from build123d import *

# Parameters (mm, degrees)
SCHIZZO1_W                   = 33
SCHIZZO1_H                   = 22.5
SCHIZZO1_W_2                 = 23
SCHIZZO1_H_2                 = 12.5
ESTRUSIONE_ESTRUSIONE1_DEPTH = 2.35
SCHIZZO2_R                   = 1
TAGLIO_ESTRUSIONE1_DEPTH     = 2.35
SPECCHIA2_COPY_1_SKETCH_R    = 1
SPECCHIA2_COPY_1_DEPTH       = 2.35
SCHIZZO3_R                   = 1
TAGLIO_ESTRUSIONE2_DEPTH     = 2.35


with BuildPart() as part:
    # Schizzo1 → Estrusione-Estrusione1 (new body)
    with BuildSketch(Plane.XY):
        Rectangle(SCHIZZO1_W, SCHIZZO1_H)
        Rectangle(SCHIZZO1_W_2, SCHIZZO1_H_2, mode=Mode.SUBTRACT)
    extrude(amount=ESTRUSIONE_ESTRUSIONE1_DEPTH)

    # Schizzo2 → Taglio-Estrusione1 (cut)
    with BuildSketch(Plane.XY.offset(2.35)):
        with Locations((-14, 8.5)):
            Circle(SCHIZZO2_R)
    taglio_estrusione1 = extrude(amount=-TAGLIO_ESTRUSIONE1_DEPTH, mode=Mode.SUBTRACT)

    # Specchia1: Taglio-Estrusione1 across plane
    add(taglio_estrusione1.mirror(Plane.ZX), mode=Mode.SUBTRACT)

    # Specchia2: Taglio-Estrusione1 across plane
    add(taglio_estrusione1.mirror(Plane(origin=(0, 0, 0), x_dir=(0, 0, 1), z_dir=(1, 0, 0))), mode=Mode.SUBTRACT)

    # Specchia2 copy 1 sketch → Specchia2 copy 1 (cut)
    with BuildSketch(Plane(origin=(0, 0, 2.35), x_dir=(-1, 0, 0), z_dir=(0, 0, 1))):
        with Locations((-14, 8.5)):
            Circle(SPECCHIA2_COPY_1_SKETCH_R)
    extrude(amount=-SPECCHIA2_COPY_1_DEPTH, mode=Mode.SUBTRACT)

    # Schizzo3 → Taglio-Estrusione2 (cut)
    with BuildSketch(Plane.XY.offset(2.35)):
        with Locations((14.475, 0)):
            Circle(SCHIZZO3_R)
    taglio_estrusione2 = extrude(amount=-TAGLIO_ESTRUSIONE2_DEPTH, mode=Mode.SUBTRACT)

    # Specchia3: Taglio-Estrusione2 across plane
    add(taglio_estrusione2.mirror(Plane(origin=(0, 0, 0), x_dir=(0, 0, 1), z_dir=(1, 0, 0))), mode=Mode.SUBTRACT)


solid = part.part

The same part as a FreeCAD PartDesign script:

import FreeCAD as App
import Part
import Sketcher
Q = App.Units.Quantity

doc = App.newDocument("Part")
body = doc.addObject("PartDesign::Body", "Body")

# Sketch on XY plane
sketch1 = body.newObject("Sketcher::SketchObject", "Sketch")
sketch1.AttachmentSupport = (doc.getObject("XY_Plane"), [""])
sketch1.MapMode = "FlatFace"
sketch1.addGeometry([
    Part.LineSegment(App.Vector(-16, 11, 0), App.Vector(-16, -11, 0)),  # 0
    Part.LineSegment(App.Vector(-16, -11, 0), App.Vector(16, -11, 0)),  # 1
    Part.LineSegment(App.Vector(16, -11, 0), App.Vector(16, 11, 0)),  # 2
    Part.LineSegment(App.Vector(16, 11, 0), App.Vector(-16, 11, 0)),  # 3
    Part.LineSegment(App.Vector(12, -6, 0), App.Vector(-12, -6, 0)),  # 4
    Part.LineSegment(App.Vector(-12, -6, 0), App.Vector(-12, 6, 0)),  # 5
    Part.LineSegment(App.Vector(-12, 6, 0), App.Vector(12, 6, 0)),  # 6
    Part.LineSegment(App.Vector(12, 6, 0), App.Vector(12, -6, 0)),  # 7
], False)
sketch1.addConstraint([
    Sketcher.Constraint("Coincident", 0, 2, 1, 1),
    Sketcher.Constraint("Coincident", 1, 2, 2, 1),
    Sketcher.Constraint("Coincident", 2, 2, 3, 1),
    Sketcher.Constraint("Coincident", 3, 2, 0, 1),
    Sketcher.Constraint("Coincident", 4, 2, 5, 1),
    Sketcher.Constraint("Coincident", 5, 2, 6, 1),
    Sketcher.Constraint("Coincident", 6, 2, 7, 1),
    Sketcher.Constraint("Coincident", 7, 2, 4, 1),
    Sketcher.Constraint("Vertical", 0),
    Sketcher.Constraint("Horizontal", 1),
    Sketcher.Constraint("Vertical", 2),
    Sketcher.Constraint("Horizontal", 3),
    Sketcher.Constraint("Horizontal", 4),
    Sketcher.Constraint("Vertical", 5),
    Sketcher.Constraint("Horizontal", 6),
    Sketcher.Constraint("Vertical", 7),
    Sketcher.Constraint("Symmetric", 0, 2, 2, 2, -1, 1),
    Sketcher.Constraint("Symmetric", 4, 2, 6, 2, -1, 1),
    Sketcher.Constraint("DistanceX", 1, 1, 1, 2, Q("33 mm")),
    Sketcher.Constraint("DistanceX", 4, 2, 4, 1, Q("23 mm")),
    Sketcher.Constraint("DistanceY", 0, 2, 0, 1, Q("22.5 mm")),
    Sketcher.Constraint("DistanceY", 5, 1, 5, 2, Q("12.5 mm")),
])
pad1 = body.newObject("PartDesign::Pad", "Pad")
pad1.Profile = sketch1
pad1.Length = 2.35

# Sketch on XY plane
sketch2 = body.newObject("Sketcher::SketchObject", "Sketch001")
sketch2.AttachmentSupport = (doc.getObject("XY_Plane"), [""])
sketch2.MapMode = "FlatFace"
sketch2.AttachmentOffset = App.Placement(App.Vector(0, 0, 2.35), App.Rotation())
sketch2.addGeometry(Part.Circle(App.Vector(-14, 8.5, 0), App.Vector(0, 0, 1), 1), False)
sketch2.addConstraint([
    Sketcher.Constraint("Diameter", 0, Q("2 mm")),
    Sketcher.Constraint("DistanceX", 0, 3, -1, 1, Q("14 mm")),
    Sketcher.Constraint("DistanceY", -1, 1, 0, 3, Q("8.5 mm")),
])
pocket1 = body.newObject("PartDesign::Pocket", "Pocket")
pocket1.Profile = sketch2
pocket1.Length = 2.35
doc.recompute()

mirrored = body.newObject("PartDesign::Mirrored", "Mirrored")
mirrored.Originals = [pocket1]
mirrored.MirrorPlane = (doc.getObject("XZ_Plane"), [""])
body.Tip = mirrored
doc.recompute()

mirrored2 = body.newObject("PartDesign::Mirrored", "Mirrored001")
mirrored2.Originals = [pocket1]
mirrored2.MirrorPlane = (doc.getObject("YZ_Plane"), [""])
body.Tip = mirrored2

# Sketch on XY plane
sketch3 = body.newObject("Sketcher::SketchObject", "Sketch002")
sketch3.AttachmentSupport = (doc.getObject("XY_Plane"), [""])
sketch3.MapMode = "FlatFace"
sketch3.AttachmentOffset = App.Placement(App.Vector(0, 0, 2.35), App.Rotation())
sketch3.addGeometry(Part.Circle(App.Vector(14, -8.5, 0), App.Vector(0, 0, 1), 1), False)
sketch3.addConstraint([
    Sketcher.Constraint("Diameter", 0, Q("2 mm")),
    Sketcher.Constraint("DistanceX", -1, 1, 0, 3, Q("14 mm")),
    Sketcher.Constraint("DistanceY", 0, 3, -1, 1, Q("8.5 mm")),
])
pocket2 = body.newObject("PartDesign::Pocket", "Pocket001")
pocket2.Profile = sketch3
pocket2.Length = 2.35

# Sketch on XY plane
sketch4 = body.newObject("Sketcher::SketchObject", "Sketch003")
sketch4.AttachmentSupport = (doc.getObject("XY_Plane"), [""])
sketch4.MapMode = "FlatFace"
sketch4.AttachmentOffset = App.Placement(App.Vector(0, 0, 2.35), App.Rotation())
sketch4.addGeometry(Part.Circle(App.Vector(14.5, 0, 0), App.Vector(0, 0, 1), 1), False)
sketch4.addConstraint([
    Sketcher.Constraint("PointOnObject", 0, 3, -1),
    Sketcher.Constraint("Diameter", 0, Q("2 mm")),
    Sketcher.Constraint("DistanceX", -1, 1, 0, 3, Q("14.475 mm")),
])
pocket3 = body.newObject("PartDesign::Pocket", "Pocket002")
pocket3.Profile = sketch4
pocket3.Length = 2.35
doc.recompute()

mirrored3 = body.newObject("PartDesign::Mirrored", "Mirrored002")
mirrored3.Originals = [pocket3]
mirrored3.MirrorPlane = (doc.getObject("YZ_Plane"), [""])
body.Tip = mirrored3

doc.recompute()
